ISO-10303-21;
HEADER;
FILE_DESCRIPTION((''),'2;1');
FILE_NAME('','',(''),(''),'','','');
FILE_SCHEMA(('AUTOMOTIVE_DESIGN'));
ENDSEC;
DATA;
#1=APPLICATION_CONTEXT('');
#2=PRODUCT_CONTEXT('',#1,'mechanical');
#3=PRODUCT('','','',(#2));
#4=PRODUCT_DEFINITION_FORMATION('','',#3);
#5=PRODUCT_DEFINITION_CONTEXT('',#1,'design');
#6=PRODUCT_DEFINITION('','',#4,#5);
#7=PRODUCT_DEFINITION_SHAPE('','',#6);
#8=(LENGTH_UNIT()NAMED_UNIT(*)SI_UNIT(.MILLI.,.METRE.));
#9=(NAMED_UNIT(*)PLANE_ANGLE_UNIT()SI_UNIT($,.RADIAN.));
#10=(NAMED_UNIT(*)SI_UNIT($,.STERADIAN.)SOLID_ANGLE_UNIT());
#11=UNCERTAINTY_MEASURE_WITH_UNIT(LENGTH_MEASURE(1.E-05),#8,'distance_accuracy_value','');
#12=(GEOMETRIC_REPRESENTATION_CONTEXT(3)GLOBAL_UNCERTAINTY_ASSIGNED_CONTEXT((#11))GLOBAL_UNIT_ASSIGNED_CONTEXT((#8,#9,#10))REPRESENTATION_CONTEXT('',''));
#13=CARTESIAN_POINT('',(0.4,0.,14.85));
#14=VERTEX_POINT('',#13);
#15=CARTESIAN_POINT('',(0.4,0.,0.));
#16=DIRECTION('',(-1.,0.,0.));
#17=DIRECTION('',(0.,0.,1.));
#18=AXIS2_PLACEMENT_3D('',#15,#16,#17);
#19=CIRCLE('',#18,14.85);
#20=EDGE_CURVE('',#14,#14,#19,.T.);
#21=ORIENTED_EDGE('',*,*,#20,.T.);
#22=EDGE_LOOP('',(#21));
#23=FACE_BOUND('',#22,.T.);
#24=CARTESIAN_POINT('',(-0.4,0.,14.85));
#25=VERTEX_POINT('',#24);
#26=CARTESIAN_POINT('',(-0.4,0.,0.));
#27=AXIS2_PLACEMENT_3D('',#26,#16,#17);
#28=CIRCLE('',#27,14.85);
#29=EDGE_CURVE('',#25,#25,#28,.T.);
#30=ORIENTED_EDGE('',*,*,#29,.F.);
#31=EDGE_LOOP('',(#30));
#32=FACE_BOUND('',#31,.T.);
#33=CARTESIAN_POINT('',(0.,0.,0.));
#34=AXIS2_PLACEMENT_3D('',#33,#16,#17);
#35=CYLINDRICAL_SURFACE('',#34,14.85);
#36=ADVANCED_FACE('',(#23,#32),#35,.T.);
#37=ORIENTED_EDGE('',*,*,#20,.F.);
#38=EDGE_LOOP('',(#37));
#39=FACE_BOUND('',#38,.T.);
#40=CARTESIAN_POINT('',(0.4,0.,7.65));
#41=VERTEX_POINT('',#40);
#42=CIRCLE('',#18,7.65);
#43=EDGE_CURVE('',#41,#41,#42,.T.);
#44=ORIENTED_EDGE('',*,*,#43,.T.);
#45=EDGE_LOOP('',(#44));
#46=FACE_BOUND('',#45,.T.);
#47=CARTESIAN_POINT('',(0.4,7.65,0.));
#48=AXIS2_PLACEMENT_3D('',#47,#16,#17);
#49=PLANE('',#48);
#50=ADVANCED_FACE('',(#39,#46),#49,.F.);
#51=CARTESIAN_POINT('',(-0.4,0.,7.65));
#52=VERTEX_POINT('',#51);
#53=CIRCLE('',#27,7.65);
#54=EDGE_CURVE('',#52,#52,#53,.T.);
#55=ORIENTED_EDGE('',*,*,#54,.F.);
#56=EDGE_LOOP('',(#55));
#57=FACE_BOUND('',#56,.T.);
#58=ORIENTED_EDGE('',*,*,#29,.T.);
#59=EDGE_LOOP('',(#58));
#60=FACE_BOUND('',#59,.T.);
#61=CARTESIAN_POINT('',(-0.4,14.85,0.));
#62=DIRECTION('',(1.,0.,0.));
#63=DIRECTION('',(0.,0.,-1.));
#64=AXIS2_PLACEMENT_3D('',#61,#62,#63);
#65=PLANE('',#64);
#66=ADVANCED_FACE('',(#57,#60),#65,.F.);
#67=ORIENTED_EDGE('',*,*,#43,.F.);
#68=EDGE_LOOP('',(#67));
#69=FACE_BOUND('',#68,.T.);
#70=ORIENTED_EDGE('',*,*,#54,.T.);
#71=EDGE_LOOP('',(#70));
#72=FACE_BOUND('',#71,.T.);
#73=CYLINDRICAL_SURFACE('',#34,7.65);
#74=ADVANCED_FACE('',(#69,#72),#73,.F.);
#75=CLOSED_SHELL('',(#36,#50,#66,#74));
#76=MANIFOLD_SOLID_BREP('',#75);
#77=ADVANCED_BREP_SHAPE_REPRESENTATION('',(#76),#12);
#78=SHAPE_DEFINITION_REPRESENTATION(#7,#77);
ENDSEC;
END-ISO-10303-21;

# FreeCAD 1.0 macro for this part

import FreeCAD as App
import Part
import Sketcher
Q = App.Units.Quantity


def add_polygon(sketch, points):
    """Adds a closed chain of lines whose ends are joined by coincident constraints."""
    first, n = sketch.GeometryCount, len(points)
    for a, b in zip(points, points[1:] + points[:1]):
        sketch.addGeometry(Part.LineSegment(App.Vector(*a, 0), App.Vector(*b, 0)), False)
    for i in range(n):
        sketch.addConstraint(Sketcher.Constraint("Coincident", first + i, 2, first + (i + 1) % n, 1))

doc = App.newDocument("Part")
params = doc.addObject("Spreadsheet::Sheet", "Params")
for row, (alias, value) in enumerate([
    ("sketch1_width", "0.8 mm"),
    ("sketch1_height", "7.2 mm"),
    ("revolution_angle", "360 deg"),
], start=1):
    params.set(f"A{row}", alias)
    params.set(f"B{row}", "=" + value)
    params.setAlias(f"B{row}", alias)

body = doc.addObject("PartDesign::Body", "Body")

sketch1 = body.newObject("Sketcher::SketchObject", "Sketch")
sketch1.AttachmentSupport = (doc.getObject("XY_Plane"), [""])
sketch1.MapMode = "FlatFace"
add_polygon(sketch1, [(-0.4, 14.85), (-0.4, 7.65), (0.4, 7.65), (0.4, 14.85)])
sketch1.addConstraint([
    Sketcher.Constraint("Vertical", 0),
    Sketcher.Constraint("Horizontal", 1),
    Sketcher.Constraint("Vertical", 2),
    Sketcher.Constraint("Horizontal", 3),
    Sketcher.Constraint("DistanceX", 1, 1, 1, 2, Q("0.8 mm")),
    Sketcher.Constraint("DistanceY", 0, 2, 0, 1, Q("7.2 mm")),
    Sketcher.Constraint("DistanceX", 0, 2, -1, 1, Q("0.4 mm")),
    Sketcher.Constraint("DistanceY", -1, 1, 0, 2, Q("7.65 mm")),
])
sketch1.setExpression("Constraints[8]", "Params.sketch1_width")
sketch1.setExpression("Constraints[9]", "Params.sketch1_height")
revolution = body.newObject("PartDesign::Revolution", "Revolution")
revolution.Profile = sketch1
revolution.ReferenceAxis = (sketch1, ["H_Axis"])
revolution.setExpression("Angle", "Params.revolution_angle")

doc.recompute()
